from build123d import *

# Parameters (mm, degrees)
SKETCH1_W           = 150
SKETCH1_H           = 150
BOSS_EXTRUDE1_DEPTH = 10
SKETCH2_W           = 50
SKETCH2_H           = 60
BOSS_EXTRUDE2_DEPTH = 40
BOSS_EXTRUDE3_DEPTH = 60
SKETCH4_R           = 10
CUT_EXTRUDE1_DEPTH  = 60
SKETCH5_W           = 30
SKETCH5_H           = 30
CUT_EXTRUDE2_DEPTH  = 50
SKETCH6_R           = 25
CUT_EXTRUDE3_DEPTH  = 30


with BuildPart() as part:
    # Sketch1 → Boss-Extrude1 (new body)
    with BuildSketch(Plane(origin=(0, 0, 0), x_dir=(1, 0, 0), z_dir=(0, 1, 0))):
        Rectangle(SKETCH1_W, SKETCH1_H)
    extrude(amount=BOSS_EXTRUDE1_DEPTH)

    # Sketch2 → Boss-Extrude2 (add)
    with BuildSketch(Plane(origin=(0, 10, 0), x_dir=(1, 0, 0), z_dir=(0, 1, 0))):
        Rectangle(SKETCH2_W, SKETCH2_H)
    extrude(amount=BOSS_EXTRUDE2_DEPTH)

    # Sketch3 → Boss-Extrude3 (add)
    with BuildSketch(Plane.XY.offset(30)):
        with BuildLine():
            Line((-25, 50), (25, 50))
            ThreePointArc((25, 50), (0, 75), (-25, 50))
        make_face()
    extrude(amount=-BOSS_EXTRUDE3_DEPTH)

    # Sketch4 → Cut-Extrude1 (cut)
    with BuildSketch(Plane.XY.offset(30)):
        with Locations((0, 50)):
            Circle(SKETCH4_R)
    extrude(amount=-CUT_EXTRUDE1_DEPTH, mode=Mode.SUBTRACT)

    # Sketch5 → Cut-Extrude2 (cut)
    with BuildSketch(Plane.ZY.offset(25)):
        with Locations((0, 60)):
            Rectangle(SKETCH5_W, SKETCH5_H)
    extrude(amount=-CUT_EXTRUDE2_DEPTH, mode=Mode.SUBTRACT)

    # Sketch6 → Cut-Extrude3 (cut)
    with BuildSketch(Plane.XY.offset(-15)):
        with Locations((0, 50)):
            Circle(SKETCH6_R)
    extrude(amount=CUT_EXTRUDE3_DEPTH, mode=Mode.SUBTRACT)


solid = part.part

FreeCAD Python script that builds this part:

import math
import FreeCAD as App
import Part
import Sketcher

V = App.Vector
Q = App.Units.Quantity

doc = App.newDocument("Part")
body = doc.addObject("PartDesign::Body", "Body")

# Sketch on XZ plane
sketch1 = body.newObject("Sketcher::SketchObject", "Sketch")
sketch1.AttachmentSupport = (doc.getObject("XZ_Plane"), [""])
sketch1.MapMode = "FlatFace"
sketch1.addGeometry([
    Part.LineSegment(V(-75, -75, 0), V(-75, 75, 0)),
    Part.LineSegment(V(-75, 75, 0), V(75, 75, 0)),
    Part.LineSegment(V(75, 75, 0), V(75, -75, 0)),
    Part.LineSegment(V(75, -75, 0), V(-75, -75, 0)),
], False)
sketch1.addConstraint([
    Sketcher.Constraint("Coincident", 0, 2, 1, 1),
    Sketcher.Constraint("Coincident", 1, 2, 2, 1),
    Sketcher.Constraint("Coincident", 2, 2, 3, 1),
    Sketcher.Constraint("Coincident", 3, 2, 0, 1),
    Sketcher.Constraint("Vertical", 0),
    Sketcher.Constraint("Horizontal", 1),
    Sketcher.Constraint("Vertical", 2),
    Sketcher.Constraint("Horizontal", 3),
    Sketcher.Constraint("Symmetric", 0, 2, 2, 2, -1, 1),
    Sketcher.Constraint("Equal", 3, 0),
    Sketcher.Constraint("DistanceX", 1, 1, 1, 2, Q("150 mm")),
])
pad1 = body.newObject("PartDesign::Pad", "Pad")
pad1.Profile = sketch1
pad1.Length = 10
pad1.Reversed = True

# Sketch on XZ plane
sketch2 = body.newObject("Sketcher::SketchObject", "Sketch001")
sketch2.AttachmentSupport = (doc.getObject("XZ_Plane"), [""])
sketch2.MapMode = "FlatFace"
sketch2.AttachmentOffset = App.Placement(V(0, 0, -10), App.Rotation())
sketch2.addGeometry([
    Part.LineSegment(V(-25, -30, 0), V(-25, 30, 0)),
    Part.LineSegment(V(-25, 30, 0), V(25, 30, 0)),
    Part.LineSegment(V(25, 30, 0), V(25, -30, 0)),
    Part.LineSegment(V(25, -30, 0), V(-25, -30, 0)),
], False)
sketch2.addConstraint([
    Sketcher.Constraint("Coincident", 0, 2, 1, 1),
    Sketcher.Constraint("Coincident", 1, 2, 2, 1),
    Sketcher.Constraint("Coincident", 2, 2, 3, 1),
    Sketcher.Constraint("Coincident", 3, 2, 0, 1),
    Sketcher.Constraint("Vertical", 0),
    Sketcher.Constraint("Horizontal", 1),
    Sketcher.Constraint("Vertical", 2),
    Sketcher.Constraint("Horizontal", 3),
    Sketcher.Constraint("Symmetric", 0, 2, 2, 2, -1, 1),
    Sketcher.Constraint("DistanceX", 1, 1, 1, 2, Q("50 mm")),
    Sketcher.Constraint("DistanceY", 0, 1, 0, 2, Q("60 mm")),
])
pad2 = body.newObject("PartDesign::Pad", "Pad001")
pad2.Profile = sketch2
pad2.Length = 40
pad2.Reversed = True

# Sketch on XY plane
sketch3 = body.newObject("Sketcher::SketchObject", "Sketch002")
sketch3.AttachmentSupport = (doc.getObject("XY_Plane"), [""])
sketch3.MapMode = "FlatFace"
sketch3.AttachmentOffset = App.Placement(V(0, 0, 30), App.Rotation())
sketch3.addGeometry([
    Part.LineSegment(V(-25, 50, 0), V(25, 50, 0)),
    Part.ArcOfCircle(Part.Circle(V(0, 50, 0), V(0, 0, 1), 25), math.radians(0), math.radians(180)),
], False)
sketch3.addConstraint([
    Sketcher.Constraint("Coincident", 0, 1, 1, 2),
    Sketcher.Constraint("Coincident", 1, 1, 0, 2),
    Sketcher.Constraint("Horizontal", 0),
    Sketcher.Constraint("PointOnObject", 1, 3, -2),
    Sketcher.Constraint("Horizontal", 1, 3, 0, 1),
    Sketcher.Constraint("Radius", 1, Q("25 mm")),
    Sketcher.Constraint("DistanceY", -1, 1, 1, 3, Q("50 mm")),
])
pad3 = body.newObject("PartDesign::Pad", "Pad002")
pad3.Profile = sketch3
pad3.Length = 60
pad3.Reversed = True

# Sketch on XY plane
sketch4 = body.newObject("Sketcher::SketchObject", "Sketch003")
sketch4.AttachmentSupport = (doc.getObject("XY_Plane"), [""])
sketch4.MapMode = "FlatFace"
sketch4.AttachmentOffset = App.Placement(V(0, 0, 30), App.Rotation())
sketch4.addGeometry(Part.Circle(V(0, 50, 0), V(0, 0, 1), 10), False)
sketch4.addConstraint([
    Sketcher.Constraint("PointOnObject", 0, 3, -2),
    Sketcher.Constraint("Diameter", 0, Q("20 mm")),
    Sketcher.Constraint("DistanceY", -1, 1, 0, 3, Q("50 mm")),
])
pocket1 = body.newObject("PartDesign::Pocket", "Pocket")
pocket1.Profile = sketch4
pocket1.Length = 60

# Sketch on YZ plane
sketch5 = body.newObject("Sketcher::SketchObject", "Sketch004")
sketch5.AttachmentSupport = (doc.getObject("YZ_Plane"), [""])
sketch5.MapMode = "FlatFace"
sketch5.AttachmentOffset = App.Placement(V(0, 0, -25), App.Rotation())
sketch5.addGeometry([
    Part.LineSegment(V(75, -15, 0), V(45, -15, 0)),
    Part.LineSegment(V(45, -15, 0), V(45, 15, 0)),
    Part.LineSegment(V(45, 15, 0), V(75, 15, 0)),
    Part.LineSegment(V(75, 15, 0), V(75, -15, 0)),
], False)
sketch5.addConstraint([
    Sketcher.Constraint("Coincident", 0, 2, 1, 1),
    Sketcher.Constraint("Coincident", 1, 2, 2, 1),
    Sketcher.Constraint("Coincident", 2, 2, 3, 1),
    Sketcher.Constraint("Coincident", 3, 2, 0, 1),
    Sketcher.Constraint("Horizontal", 0),
    Sketcher.Constraint("Vertical", 1),
    Sketcher.Constraint("Horizontal", 2),
    Sketcher.Constraint("Vertical", 3),
    Sketcher.Constraint("Equal", 2, 1),
    Sketcher.Constraint("DistanceX", 0, 2, 0, 1, Q("30 mm")),
    Sketcher.Constraint("DistanceX", -1, 1, 0, 2, Q("45 mm")),
    Sketcher.Constraint("DistanceY", 0, 2, -1, 1, Q("15 mm")),
])
pocket2 = body.newObject("PartDesign::Pocket", "Pocket001")
pocket2.Profile = sketch5
pocket2.Length = 50
pocket2.Reversed = True

# Sketch on XY plane
sketch6 = body.newObject("Sketcher::SketchObject", "Sketch005")
sketch6.AttachmentSupport = (doc.getObject("XY_Plane"), [""])
sketch6.MapMode = "FlatFace"
sketch6.AttachmentOffset = App.Placement(V(0, 0, -15), App.Rotation())
sketch6.addGeometry(Part.Circle(V(0, 50, 0), V(0, 0, 1), 25), False)
sketch6.addConstraint([
    Sketcher.Constraint("PointOnObject", 0, 3, -2),
    Sketcher.Constraint("Diameter", 0, Q("50 mm")),
    Sketcher.Constraint("DistanceY", -1, 1, 0, 3, Q("50 mm")),
])
pocket3 = body.newObject("PartDesign::Pocket", "Pocket002")
pocket3.Profile = sketch6
pocket3.Length = 30
pocket3.Reversed = True

doc.recompute()
